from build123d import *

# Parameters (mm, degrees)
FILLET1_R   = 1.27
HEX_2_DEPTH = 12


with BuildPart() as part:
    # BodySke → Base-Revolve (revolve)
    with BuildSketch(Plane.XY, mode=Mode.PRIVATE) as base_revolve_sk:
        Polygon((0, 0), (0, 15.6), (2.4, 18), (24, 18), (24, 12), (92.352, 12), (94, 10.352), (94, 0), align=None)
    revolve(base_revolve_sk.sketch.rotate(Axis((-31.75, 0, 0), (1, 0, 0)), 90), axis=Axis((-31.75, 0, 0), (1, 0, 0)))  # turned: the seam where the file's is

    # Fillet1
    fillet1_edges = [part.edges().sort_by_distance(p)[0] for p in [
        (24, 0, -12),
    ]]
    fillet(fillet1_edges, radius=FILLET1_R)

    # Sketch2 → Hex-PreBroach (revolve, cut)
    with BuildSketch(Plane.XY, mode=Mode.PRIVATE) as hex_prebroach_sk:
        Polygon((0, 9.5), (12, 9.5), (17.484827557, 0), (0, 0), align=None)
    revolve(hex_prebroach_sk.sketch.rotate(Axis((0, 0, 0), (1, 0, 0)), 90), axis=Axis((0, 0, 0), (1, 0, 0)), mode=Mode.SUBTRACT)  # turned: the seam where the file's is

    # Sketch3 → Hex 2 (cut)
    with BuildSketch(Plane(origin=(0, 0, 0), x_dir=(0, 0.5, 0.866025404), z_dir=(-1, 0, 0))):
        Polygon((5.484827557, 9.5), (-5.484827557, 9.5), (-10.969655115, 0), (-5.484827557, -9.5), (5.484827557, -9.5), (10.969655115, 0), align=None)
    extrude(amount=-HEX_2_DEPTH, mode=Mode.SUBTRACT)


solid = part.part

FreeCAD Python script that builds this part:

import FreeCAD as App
import Part
import Sketcher
Q = App.Units.Quantity


def edges_at(feature, points):
    """Names of the edges that pass closest to the given points."""
    edges = feature.Shape.Edges
    near = lambda p: min(range(len(edges)), key=lambda i: edges[i].distToShape(Part.Vertex(*p))[0])
    return sorted({f"Edge{near(p) + 1}" for p in points})


def add_polygon(sketch, points):
    """Adds a closed chain of lines whose ends are joined by coincident constraints."""
    first, n = sketch.GeometryCount, len(points)
    for a, b in zip(points, points[1:] + points[:1]):
        sketch.addGeometry(Part.LineSegment(App.Vector(*a, 0), App.Vector(*b, 0)), False)
    for i in range(n):
        sketch.addConstraint(Sketcher.Constraint("Coincident", first + i, 2, first + (i + 1) % n, 1))

doc = App.newDocument("Part")
body = doc.addObject("PartDesign::Body", "Body")

# Sketch on XY plane
sketch1 = doc.addObject("Sketcher::SketchObject", "Sketch")
body.addObject(sketch1)
sketch1.AttachmentSupport = (doc.XY_Plane, [""])
sketch1.MapMode = "FlatFace"
add_polygon(sketch1, [(0, 15.6), (0, 0), (94, 0), (94, 10.352), (92.352, 12), (24, 12), (24, 18), (2.4, 18)])  # lines 0-7
sketch1.addConstraint([
    Sketcher.Constraint("Vertical", 0),
    Sketcher.Constraint("Horizontal", 1),
    Sketcher.Constraint("Vertical", 2),
    Sketcher.Constraint("Horizontal", 4),
    Sketcher.Constraint("Vertical", 5),
    Sketcher.Constraint("Horizontal", 6),
    Sketcher.Constraint("Coincident", 0, 2, -1, 1),
    Sketcher.Constraint("Perpendicular", 3, 7),
    Sketcher.Constraint("DistanceX", 1, 1, 1, 2, 94.0),
    Sketcher.Constraint("DistanceY", 5, 1, 5, 2, 6.0),
    Sketcher.Constraint("Angle", 3, Q("135 deg")),
    Sketcher.Constraint("DistanceX", 6, 2, 6, 1, 21.6),
    Sketcher.Constraint("DistanceY", 0, 2, 0, 1, 15.6),
    Sketcher.Constraint("DistanceY", -1, 1, 3, 2, 12.0),
    Sketcher.Constraint("DistanceX", 4, 2, 4, 1, 68.352),
])
revolution = doc.addObject("PartDesign::Revolution", "Revolution")
body.addObject(revolution)
revolution.Profile = sketch1
revolution.ReferenceAxis = (sketch1, ["H_Axis"])
revolution.Angle = 360
doc.recompute()

fillet = doc.addObject("PartDesign::Fillet", "Fillet")
body.addObject(fillet)
fillet.Base = (revolution, edges_at(revolution, [(24, 0, -12)]))
fillet.Radius = 1.27

# Sketch on XY plane
sketch2 = doc.addObject("Sketcher::SketchObject", "Sketch001")
body.addObject(sketch2)
sketch2.AttachmentSupport = (doc.XY_Plane, [""])
sketch2.MapMode = "FlatFace"
add_polygon(sketch2, [(12, 9.5), (0, 9.5), (0, 0), (17.484828, 0)])  # lines 0-3
sketch2.addConstraint([
    Sketcher.Constraint("Horizontal", 0),
    Sketcher.Constraint("Vertical", 1),
    Sketcher.Constraint("Horizontal", 2),
    Sketcher.Constraint("Coincident", 1, 2, -1, 1),
    Sketcher.Constraint("DistanceX", 0, 2, 0, 1, 12.0),
    Sketcher.Constraint("Angle", 3, Q("120 deg")),
    Sketcher.Constraint("DistanceY", 1, 2, 1, 1, 9.5),
])
groove = doc.addObject("PartDesign::Groove", "Groove")
body.addObject(groove)
groove.Profile = sketch2
groove.ReferenceAxis = (sketch2, ["H_Axis"])
groove.Angle = 360

# Sketch on YZ plane
sketch3 = doc.addObject("Sketcher::SketchObject", "Sketch002")
body.addObject(sketch3)
sketch3.AttachmentSupport = (doc.YZ_Plane, [""])
sketch3.MapMode = "FlatFace"
add_polygon(sketch3, [(10.969655, 0), (5.484828, -9.5), (-5.484828, -9.5), (-10.969655, 0), (-5.484828, 9.5), (5.484828, 9.5)])  # lines 0-5
sketch3.addConstraint([
    Sketcher.Constraint("Horizontal", 1),
    Sketcher.Constraint("Horizontal", 4),
    Sketcher.Constraint("Symmetric", 0, 2, 3, 2, -1, 1),
    Sketcher.Constraint("Symmetric", 2, 2, 5, 2, -1, 1),
    Sketcher.Constraint("PointOnObject", 2, 2, -1),
    Sketcher.Constraint("Parallel", 2, 5),
    Sketcher.Constraint("Vertical", 1, 2, 3, 2),
    Sketcher.Constraint("Angle", 0, Q("-120 deg")),
    Sketcher.Constraint("DistanceY", 1, 2, 3, 2, 19.0),
    Sketcher.Constraint("DistanceX", 1, 2, 1, 1, 10.969655),
])
pocket1 = doc.addObject("PartDesign::Pocket", "Pocket")
body.addObject(pocket1)
pocket1.Profile = sketch3
pocket1.Length = 12
pocket1.Reversed = True

doc.recompute()
